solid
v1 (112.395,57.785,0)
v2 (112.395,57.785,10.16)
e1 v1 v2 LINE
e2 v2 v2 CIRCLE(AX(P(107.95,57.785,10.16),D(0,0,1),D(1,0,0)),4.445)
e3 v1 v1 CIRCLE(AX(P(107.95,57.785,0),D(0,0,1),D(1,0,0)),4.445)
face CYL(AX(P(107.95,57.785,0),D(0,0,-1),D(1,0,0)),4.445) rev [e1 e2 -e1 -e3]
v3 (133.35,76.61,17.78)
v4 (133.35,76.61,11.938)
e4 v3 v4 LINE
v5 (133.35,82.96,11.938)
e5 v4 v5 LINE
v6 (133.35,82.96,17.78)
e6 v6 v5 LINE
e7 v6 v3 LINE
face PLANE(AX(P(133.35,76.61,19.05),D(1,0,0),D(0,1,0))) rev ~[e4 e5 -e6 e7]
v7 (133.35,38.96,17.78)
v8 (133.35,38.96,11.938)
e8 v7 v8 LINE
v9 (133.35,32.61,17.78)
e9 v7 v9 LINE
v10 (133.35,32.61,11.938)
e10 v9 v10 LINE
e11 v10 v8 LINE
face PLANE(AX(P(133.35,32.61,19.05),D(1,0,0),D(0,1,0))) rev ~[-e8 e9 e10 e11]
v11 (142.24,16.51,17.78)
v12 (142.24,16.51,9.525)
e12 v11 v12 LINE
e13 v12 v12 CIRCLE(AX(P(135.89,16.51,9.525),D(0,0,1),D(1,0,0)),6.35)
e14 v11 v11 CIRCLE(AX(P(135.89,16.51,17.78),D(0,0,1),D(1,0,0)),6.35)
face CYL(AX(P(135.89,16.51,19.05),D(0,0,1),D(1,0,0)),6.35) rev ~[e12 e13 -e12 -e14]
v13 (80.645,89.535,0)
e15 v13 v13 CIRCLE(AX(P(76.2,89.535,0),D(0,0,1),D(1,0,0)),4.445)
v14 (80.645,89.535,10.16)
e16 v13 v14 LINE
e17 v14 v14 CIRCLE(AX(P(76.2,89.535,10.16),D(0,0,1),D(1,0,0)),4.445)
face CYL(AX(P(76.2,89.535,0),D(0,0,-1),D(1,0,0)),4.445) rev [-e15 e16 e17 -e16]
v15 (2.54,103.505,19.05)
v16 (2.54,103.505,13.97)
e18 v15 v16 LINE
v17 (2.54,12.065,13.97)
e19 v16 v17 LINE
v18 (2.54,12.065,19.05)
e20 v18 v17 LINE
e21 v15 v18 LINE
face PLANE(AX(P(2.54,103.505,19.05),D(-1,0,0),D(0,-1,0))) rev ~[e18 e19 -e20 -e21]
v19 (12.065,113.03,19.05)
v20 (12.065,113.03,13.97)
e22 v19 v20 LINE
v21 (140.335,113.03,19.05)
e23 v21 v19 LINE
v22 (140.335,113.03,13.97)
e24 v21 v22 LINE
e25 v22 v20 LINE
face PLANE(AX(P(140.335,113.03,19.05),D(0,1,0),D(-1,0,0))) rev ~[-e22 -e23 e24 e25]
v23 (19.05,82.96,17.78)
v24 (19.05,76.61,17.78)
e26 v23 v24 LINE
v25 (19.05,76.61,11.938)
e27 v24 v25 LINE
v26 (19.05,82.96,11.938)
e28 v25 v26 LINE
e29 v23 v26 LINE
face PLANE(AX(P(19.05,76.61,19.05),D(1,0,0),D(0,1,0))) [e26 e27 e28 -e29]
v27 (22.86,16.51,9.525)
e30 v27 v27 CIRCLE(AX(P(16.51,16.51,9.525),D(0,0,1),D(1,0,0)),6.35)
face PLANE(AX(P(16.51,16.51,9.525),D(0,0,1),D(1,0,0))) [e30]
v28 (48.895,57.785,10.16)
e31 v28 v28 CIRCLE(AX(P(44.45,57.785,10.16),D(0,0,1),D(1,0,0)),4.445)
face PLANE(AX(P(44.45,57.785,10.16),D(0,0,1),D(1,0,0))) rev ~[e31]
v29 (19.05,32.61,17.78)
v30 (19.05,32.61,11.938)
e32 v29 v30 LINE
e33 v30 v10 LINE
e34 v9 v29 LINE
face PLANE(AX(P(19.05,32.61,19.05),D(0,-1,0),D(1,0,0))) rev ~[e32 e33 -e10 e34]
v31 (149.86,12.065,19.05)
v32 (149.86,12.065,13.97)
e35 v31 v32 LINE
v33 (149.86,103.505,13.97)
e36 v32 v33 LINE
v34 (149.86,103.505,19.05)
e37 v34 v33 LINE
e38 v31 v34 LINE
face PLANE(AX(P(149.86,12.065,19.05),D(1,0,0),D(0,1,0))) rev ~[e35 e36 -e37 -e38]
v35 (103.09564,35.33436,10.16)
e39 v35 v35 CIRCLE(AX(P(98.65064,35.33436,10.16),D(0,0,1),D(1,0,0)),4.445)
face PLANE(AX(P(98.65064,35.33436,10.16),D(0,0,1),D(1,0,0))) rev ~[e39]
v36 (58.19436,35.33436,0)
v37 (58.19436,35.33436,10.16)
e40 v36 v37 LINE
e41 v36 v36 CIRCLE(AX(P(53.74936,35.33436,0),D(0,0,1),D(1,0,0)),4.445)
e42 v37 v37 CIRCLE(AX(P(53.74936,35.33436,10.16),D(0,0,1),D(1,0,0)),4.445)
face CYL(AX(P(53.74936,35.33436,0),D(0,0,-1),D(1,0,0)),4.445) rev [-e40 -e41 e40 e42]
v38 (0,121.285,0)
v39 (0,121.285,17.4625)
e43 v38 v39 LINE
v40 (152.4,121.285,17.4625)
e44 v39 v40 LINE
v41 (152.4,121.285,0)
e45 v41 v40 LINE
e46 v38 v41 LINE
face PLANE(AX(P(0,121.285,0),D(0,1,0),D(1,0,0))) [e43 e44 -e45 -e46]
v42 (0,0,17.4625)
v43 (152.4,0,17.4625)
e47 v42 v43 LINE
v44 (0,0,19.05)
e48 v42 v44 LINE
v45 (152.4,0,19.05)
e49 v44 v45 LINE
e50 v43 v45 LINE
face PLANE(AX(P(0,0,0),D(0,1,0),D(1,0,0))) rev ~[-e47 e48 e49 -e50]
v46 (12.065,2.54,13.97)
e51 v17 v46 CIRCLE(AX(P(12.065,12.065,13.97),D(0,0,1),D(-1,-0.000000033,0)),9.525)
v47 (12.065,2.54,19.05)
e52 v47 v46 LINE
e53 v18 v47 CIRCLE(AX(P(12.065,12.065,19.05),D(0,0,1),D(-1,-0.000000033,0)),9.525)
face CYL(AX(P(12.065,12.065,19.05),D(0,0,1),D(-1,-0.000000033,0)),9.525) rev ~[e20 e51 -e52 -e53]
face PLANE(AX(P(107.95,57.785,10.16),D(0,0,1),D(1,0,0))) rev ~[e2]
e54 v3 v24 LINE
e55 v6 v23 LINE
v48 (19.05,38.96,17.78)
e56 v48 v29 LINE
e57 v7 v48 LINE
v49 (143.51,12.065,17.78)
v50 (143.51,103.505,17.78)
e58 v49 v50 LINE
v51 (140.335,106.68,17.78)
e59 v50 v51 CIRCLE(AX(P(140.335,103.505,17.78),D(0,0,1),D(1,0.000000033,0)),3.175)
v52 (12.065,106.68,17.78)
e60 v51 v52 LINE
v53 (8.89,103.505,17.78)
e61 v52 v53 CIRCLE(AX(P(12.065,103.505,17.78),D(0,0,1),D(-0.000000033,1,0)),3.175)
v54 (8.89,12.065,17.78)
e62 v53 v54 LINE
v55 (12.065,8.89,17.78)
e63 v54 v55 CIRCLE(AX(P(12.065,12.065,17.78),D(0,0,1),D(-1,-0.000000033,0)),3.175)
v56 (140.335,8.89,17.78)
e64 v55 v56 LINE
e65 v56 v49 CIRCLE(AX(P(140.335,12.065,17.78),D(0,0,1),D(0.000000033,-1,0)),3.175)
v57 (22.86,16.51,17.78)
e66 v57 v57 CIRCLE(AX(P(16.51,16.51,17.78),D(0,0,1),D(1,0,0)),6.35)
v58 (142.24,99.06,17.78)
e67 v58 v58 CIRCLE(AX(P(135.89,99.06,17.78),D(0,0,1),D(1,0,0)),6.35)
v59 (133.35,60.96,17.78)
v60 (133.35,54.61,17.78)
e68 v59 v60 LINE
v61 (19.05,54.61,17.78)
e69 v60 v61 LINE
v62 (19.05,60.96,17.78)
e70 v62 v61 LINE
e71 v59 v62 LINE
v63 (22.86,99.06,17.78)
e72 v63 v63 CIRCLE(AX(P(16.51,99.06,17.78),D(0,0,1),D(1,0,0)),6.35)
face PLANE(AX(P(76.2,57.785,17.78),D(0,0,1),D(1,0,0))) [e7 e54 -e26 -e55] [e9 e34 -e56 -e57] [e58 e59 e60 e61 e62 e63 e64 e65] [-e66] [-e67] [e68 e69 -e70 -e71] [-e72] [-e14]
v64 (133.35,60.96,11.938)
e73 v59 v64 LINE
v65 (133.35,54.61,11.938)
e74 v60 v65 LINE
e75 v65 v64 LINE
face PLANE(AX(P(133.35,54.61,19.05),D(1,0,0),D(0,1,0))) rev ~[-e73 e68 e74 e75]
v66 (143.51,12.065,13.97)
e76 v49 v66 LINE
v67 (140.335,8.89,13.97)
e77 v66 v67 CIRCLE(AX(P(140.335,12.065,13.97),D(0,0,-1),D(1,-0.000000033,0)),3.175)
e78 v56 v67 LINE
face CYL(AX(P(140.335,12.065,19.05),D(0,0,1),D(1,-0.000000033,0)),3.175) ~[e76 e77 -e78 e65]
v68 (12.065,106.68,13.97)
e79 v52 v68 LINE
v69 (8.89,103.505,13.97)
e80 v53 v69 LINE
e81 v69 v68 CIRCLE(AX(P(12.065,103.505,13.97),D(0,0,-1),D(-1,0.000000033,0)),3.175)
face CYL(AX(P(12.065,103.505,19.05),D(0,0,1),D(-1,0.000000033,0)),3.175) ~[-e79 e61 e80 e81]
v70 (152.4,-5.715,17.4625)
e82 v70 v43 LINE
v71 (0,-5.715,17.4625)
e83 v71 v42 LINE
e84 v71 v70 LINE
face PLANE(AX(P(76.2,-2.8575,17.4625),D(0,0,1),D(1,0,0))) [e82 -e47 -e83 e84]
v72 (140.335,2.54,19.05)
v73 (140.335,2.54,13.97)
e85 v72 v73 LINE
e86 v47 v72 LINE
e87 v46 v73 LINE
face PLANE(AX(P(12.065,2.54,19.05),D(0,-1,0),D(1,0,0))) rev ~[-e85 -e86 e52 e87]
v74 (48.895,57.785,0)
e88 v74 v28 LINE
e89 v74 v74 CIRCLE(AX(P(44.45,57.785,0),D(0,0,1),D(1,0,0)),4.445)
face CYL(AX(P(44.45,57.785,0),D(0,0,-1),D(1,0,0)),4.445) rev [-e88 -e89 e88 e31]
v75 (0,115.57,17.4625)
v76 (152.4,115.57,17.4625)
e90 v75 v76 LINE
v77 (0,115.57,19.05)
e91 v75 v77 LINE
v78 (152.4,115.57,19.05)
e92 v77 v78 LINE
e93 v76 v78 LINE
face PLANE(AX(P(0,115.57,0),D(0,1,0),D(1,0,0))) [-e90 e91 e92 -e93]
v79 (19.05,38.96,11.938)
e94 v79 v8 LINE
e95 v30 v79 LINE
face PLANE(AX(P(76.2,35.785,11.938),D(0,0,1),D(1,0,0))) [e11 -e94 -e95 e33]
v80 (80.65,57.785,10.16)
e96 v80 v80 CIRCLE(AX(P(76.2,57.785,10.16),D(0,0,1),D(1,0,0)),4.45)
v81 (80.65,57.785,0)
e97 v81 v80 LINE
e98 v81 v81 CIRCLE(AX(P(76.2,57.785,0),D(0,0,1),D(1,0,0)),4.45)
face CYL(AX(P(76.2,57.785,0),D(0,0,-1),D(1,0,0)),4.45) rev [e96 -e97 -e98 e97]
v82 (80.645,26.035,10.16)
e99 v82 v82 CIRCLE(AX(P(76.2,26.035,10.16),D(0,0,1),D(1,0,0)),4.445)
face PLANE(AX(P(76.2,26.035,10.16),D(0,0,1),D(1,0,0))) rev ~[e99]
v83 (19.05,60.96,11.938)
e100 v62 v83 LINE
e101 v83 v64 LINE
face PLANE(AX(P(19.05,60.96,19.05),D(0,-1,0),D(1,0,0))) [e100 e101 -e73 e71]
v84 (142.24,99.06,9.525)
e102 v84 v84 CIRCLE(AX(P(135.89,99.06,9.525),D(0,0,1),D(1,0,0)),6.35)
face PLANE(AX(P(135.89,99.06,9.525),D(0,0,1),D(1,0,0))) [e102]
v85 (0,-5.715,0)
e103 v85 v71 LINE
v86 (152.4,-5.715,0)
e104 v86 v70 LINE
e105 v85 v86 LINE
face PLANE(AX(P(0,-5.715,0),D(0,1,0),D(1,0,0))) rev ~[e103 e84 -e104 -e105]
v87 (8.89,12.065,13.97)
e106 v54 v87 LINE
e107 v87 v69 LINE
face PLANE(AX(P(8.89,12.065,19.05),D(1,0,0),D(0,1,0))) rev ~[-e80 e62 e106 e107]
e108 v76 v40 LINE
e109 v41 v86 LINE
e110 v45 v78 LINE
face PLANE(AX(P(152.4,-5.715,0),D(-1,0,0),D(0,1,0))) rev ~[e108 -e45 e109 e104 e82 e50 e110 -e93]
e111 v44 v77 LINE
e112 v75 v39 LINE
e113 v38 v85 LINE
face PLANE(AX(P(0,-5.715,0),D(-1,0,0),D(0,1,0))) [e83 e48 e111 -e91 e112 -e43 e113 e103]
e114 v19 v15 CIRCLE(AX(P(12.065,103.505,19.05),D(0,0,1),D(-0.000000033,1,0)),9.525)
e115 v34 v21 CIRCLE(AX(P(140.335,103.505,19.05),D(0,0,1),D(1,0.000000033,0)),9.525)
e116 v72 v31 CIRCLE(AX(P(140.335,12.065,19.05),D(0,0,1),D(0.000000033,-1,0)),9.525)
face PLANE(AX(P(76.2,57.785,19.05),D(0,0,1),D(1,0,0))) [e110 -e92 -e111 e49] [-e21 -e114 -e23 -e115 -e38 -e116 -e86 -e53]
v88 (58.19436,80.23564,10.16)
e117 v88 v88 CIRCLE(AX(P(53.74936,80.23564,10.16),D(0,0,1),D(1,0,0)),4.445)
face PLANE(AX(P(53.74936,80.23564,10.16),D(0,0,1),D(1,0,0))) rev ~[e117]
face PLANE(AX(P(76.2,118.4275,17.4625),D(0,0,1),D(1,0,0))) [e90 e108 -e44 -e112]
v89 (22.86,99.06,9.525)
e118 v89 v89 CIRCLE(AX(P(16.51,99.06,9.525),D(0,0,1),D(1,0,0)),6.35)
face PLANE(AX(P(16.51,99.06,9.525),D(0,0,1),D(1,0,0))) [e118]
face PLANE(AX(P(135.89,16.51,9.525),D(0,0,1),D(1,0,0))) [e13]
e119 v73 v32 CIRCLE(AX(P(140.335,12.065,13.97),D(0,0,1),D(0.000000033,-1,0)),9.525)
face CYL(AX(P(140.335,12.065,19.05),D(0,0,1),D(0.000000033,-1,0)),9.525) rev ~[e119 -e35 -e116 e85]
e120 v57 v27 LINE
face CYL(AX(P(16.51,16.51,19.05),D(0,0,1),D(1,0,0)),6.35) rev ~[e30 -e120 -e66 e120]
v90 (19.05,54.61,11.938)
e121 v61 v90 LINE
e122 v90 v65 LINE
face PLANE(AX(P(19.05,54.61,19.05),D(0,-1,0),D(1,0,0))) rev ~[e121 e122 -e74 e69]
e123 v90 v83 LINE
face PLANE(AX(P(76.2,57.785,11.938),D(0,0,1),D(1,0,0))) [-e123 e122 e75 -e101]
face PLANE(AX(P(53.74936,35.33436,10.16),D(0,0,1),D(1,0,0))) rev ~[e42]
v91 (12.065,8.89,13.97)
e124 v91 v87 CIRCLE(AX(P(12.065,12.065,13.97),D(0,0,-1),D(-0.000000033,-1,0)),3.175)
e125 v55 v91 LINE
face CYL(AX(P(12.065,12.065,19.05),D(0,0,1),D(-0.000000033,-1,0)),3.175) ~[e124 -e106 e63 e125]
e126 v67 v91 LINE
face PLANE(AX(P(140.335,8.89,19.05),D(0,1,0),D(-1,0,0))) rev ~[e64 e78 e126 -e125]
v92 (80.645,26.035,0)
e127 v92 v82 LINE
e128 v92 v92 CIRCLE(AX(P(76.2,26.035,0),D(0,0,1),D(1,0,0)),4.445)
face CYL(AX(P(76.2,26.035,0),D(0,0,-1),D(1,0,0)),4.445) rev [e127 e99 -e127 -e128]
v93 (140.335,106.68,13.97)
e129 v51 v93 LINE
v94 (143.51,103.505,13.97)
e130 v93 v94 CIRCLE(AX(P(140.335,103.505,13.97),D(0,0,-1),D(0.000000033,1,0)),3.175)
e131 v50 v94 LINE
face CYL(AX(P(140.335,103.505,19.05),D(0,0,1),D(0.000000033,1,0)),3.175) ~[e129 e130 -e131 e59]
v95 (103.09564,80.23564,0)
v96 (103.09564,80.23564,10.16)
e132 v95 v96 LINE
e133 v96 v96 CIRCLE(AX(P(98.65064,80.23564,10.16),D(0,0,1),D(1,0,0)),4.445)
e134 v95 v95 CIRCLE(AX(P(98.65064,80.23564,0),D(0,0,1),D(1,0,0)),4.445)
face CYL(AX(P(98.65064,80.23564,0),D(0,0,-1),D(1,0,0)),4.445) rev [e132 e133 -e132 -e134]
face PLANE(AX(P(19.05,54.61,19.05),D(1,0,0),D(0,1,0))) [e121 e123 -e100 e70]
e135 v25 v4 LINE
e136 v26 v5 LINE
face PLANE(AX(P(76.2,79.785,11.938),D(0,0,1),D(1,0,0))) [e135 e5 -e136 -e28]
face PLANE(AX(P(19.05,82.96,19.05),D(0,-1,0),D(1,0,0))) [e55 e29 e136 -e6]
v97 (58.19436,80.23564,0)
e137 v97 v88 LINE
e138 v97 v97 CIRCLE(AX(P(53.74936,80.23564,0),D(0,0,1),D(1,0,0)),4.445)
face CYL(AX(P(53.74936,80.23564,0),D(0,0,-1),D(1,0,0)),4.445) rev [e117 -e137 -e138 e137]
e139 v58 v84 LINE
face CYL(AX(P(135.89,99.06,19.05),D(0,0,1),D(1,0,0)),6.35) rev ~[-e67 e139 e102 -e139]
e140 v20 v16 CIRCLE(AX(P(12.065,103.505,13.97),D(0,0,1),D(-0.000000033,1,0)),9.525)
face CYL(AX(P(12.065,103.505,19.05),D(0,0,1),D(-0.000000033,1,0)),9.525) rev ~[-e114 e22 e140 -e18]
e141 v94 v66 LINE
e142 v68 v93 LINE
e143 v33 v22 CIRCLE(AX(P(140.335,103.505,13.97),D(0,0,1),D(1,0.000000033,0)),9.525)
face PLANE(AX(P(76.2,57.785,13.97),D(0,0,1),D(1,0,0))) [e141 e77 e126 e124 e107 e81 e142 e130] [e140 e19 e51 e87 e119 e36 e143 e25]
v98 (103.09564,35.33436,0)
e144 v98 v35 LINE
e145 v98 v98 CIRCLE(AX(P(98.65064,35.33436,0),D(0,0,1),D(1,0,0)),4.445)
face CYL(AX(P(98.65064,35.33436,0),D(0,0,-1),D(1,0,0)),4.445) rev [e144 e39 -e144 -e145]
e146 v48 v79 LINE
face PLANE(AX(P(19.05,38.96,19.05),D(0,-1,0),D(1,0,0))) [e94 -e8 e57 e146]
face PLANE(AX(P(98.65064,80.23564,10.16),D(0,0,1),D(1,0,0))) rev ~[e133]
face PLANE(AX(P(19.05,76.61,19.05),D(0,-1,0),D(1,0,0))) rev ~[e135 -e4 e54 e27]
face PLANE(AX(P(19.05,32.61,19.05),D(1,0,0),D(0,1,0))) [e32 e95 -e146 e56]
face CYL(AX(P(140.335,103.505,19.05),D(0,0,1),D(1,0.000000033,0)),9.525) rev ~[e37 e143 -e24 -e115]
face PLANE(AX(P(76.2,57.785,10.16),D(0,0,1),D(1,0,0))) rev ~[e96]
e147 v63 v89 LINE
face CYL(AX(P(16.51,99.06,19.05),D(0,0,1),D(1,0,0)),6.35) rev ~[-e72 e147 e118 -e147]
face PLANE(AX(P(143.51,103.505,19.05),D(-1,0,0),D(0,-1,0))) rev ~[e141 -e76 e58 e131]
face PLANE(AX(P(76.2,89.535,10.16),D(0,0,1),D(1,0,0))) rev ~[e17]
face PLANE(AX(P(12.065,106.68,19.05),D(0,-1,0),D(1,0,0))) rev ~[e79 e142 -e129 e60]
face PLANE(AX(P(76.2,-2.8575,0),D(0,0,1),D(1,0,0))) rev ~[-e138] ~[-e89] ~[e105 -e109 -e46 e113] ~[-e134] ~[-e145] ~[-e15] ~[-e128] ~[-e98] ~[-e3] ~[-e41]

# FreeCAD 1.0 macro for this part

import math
import FreeCAD as App
import Part
import Sketcher
Q = App.Units.Quantity

doc = App.newDocument("Part")
body = doc.addObject("PartDesign::Body", "Body")

# Sketch on XY plane
sketch1 = body.newObject("Sketcher::SketchObject", "Sketch")
sketch1.AttachmentSupport = (doc.getObject("XY_Plane"), [""])
sketch1.MapMode = "FlatFace"
sketch1.addGeometry(Part.LineSegment(App.Vector(0, 116, 0), App.Vector(0, 0, 0)), False)
sketch1.addGeometry(Part.LineSegment(App.Vector(0, 0, 0), App.Vector(152, 0, 0)), False)
sketch1.addGeometry(Part.LineSegment(App.Vector(152, 0, 0), App.Vector(152, 116, 0)), False)
sketch1.addGeometry(Part.LineSegment(App.Vector(152, 116, 0), App.Vector(0, 116, 0)), False)
sketch1.addConstraint(Sketcher.Constraint("Coincident", 0, 2, 1, 1))
sketch1.addConstraint(Sketcher.Constraint("Coincident", 1, 2, 2, 1))
sketch1.addConstraint(Sketcher.Constraint("Coincident", 2, 2, 3, 1))
sketch1.addConstraint(Sketcher.Constraint("Coincident", 3, 2, 0, 1))
sketch1.addConstraint(Sketcher.Constraint("Vertical", 0))
sketch1.addConstraint(Sketcher.Constraint("Horizontal", 1))
sketch1.addConstraint(Sketcher.Constraint("Vertical", 2))
sketch1.addConstraint(Sketcher.Constraint("Horizontal", 3))
sketch1.addConstraint(Sketcher.Constraint("Coincident", 0, 2, -1, 1))
sketch1.addConstraint(Sketcher.Constraint("DistanceX", 1, 1, 1, 2, Q("6 in")))
sketch1.addConstraint(Sketcher.Constraint("DistanceY", 0, 2, 0, 1, Q("4.55 in")))
pad1 = body.newObject("PartDesign::Pad", "Pad")
pad1.Profile = sketch1
pad1.Length = Q("0.75 in")

# Sketch on XY plane
sketch2 = body.newObject("Sketcher::SketchObject", "Sketch001")
sketch2.AttachmentSupport = (doc.getObject("XY_Plane"), [""])
sketch2.MapMode = "FlatFace"
sketch2.AttachmentOffset = App.Placement(App.Vector(0, 0, 0.75 * 25.4), App.Rotation())
sketch2.addGeometry(Part.LineSegment(App.Vector(140.3, 113, 0), App.Vector(12.1, 113, 0)), False)
sketch2.addGeometry(Part.ArcOfCircle(Part.Circle(App.Vector(12.1, 103.5, 0), App.Vector(0, 0, 1), 9.5), math.radians(90), math.radians(180)), False)
sketch2.addGeometry(Part.LineSegment(App.Vector(2.5, 103.5, 0), App.Vector(2.5, 12.1, 0)), False)
sketch2.addGeometry(Part.ArcOfCircle(Part.Circle(App.Vector(12.1, 12.1, 0), App.Vector(0, 0, 1), 9.5), math.radians(-180), math.radians(-90)), False)
sketch2.addGeometry(Part.LineSegment(App.Vector(12.1, 2.5, 0), App.Vector(140.3, 2.5, 0)), False)
sketch2.addGeometry(Part.ArcOfCircle(Part.Circle(App.Vector(140.3, 12.1, 0), App.Vector(0, 0, 1), 9.5), math.radians(-90), math.radians(0)), False)
sketch2.addGeometry(Part.LineSegment(App.Vector(149.9, 12.1, 0), App.Vector(149.9, 103.5, 0)), False)
sketch2.addGeometry(Part.ArcOfCircle(Part.Circle(App.Vector(140.3, 103.5, 0), App.Vector(0, 0, 1), 9.5), math.radians(0), math.radians(90)), False)
sketch2.addGeometry(Part.LineSegment(App.Vector(8.9, 12.1, 0), App.Vector(8.9, 103.5, 0)), False)
sketch2.addGeometry(Part.ArcOfCircle(Part.Circle(App.Vector(12.1, 103.5, 0), App.Vector(0, 0, 1), 3.2), math.radians(90), math.radians(180)), False)
sketch2.addGeometry(Part.LineSegment(App.Vector(12.1, 106.7, 0), App.Vector(140.3, 106.7, 0)), False)
sketch2.addGeometry(Part.ArcOfCircle(Part.Circle(App.Vector(140.3, 103.5, 0), App.Vector(0, 0, 1), 3.2), math.radians(0), math.radians(90)), False)
sketch2.addGeometry(Part.LineSegment(App.Vector(143.5, 103.5, 0), App.Vector(143.5, 12.1, 0)), False)
sketch2.addGeometry(Part.ArcOfCircle(Part.Circle(App.Vector(140.3, 12.1, 0), App.Vector(0, 0, 1), 3.2), math.radians(-90), math.radians(0)), False)
sketch2.addGeometry(Part.LineSegment(App.Vector(140.3, 8.9, 0), App.Vector(12.1, 8.9, 0)), False)
sketch2.addGeometry(Part.ArcOfCircle(Part.Circle(App.Vector(12.1, 12.1, 0), App.Vector(0, 0, 1), 3.2), math.radians(-180), math.radians(-90)), False)
sketch2.addConstraint(Sketcher.Constraint("Tangent", 0, 2, 1, 1))
sketch2.addConstraint(Sketcher.Constraint("Tangent", 1, 2, 2, 1))
sketch2.addConstraint(Sketcher.Constraint("Tangent", 2, 2, 3, 1))
sketch2.addConstraint(Sketcher.Constraint("Tangent", 3, 2, 4, 1))
sketch2.addConstraint(Sketcher.Constraint("Tangent", 4, 2, 5, 1))
sketch2.addConstraint(Sketcher.Constraint("Tangent", 5, 2, 6, 1))
sketch2.addConstraint(Sketcher.Constraint("Tangent", 6, 2, 7, 1))
sketch2.addConstraint(Sketcher.Constraint("Tangent", 7, 2, 0, 1))
sketch2.addConstraint(Sketcher.Constraint("Tangent", 8, 2, 9, 2))
sketch2.addConstraint(Sketcher.Constraint("Tangent", 9, 1, 10, 1))
sketch2.addConstraint(Sketcher.Constraint("Tangent", 10, 2, 11, 2))
sketch2.addConstraint(Sketcher.Constraint("Tangent", 11, 1, 12, 1))
sketch2.addConstraint(Sketcher.Constraint("Tangent", 12, 2, 13, 2))
sketch2.addConstraint(Sketcher.Constraint("Tangent", 13, 1, 14, 1))
sketch2.addConstraint(Sketcher.Constraint("Tangent", 14, 2, 15, 2))
sketch2.addConstraint(Sketcher.Constraint("Tangent", 15, 1, 8, 1))
sketch2.addConstraint(Sketcher.Constraint("Horizontal", 0))
sketch2.addConstraint(Sketcher.Constraint("Vertical", 2))
sketch2.addConstraint(Sketcher.Constraint("Horizontal", 4))
sketch2.addConstraint(Sketcher.Constraint("Vertical", 6))
sketch2.addConstraint(Sketcher.Constraint("Vertical", 8))
sketch2.addConstraint(Sketcher.Constraint("Horizontal", 10))
sketch2.addConstraint(Sketcher.Constraint("Vertical", 12))
sketch2.addConstraint(Sketcher.Constraint("Horizontal", 14))
sketch2.addConstraint(Sketcher.Constraint("Coincident", 9, 3, 1, 3))
sketch2.addConstraint(Sketcher.Constraint("Coincident", 11, 3, 7, 3))
sketch2.addConstraint(Sketcher.Constraint("Coincident", 13, 3, 5, 3))
sketch2.addConstraint(Sketcher.Constraint("Equal", 1, 3))
sketch2.addConstraint(Sketcher.Constraint("Equal", 3, 5))
sketch2.addConstraint(Sketcher.Constraint("Equal", 5, 7))
sketch2.addConstraint(Sketcher.Constraint("Equal", 13, 15))
sketch2.addConstraint(Sketcher.Constraint("DistanceY", 2, 2, 2, 1, Q("3.6 in")))
sketch2.addConstraint(Sketcher.Constraint("Radius", 1, Q("0.375 in")))
sketch2.addConstraint(Sketcher.Constraint("Radius", 9, Q("0.125 in")))
sketch2.addConstraint(Sketcher.Constraint("DistanceX", 0, 2, 0, 1, Q("5.05 in")))
sketch2.addConstraint(Sketcher.Constraint("DistanceX", -1, 1, 1, 2, Q("0.1 in")))
sketch2.addConstraint(Sketcher.Constraint("DistanceY", -1, 1, 3, 2, Q("0.1 in")))
pocket1 = body.newObject("PartDesign::Pocket", "Pocket")
pocket1.Profile = sketch2
pocket1.Length = Q("0.2 in")

# Sketch on XY plane
sketch3 = body.newObject("Sketcher::SketchObject", "Sketch002")
sketch3.AttachmentSupport = (doc.getObject("XY_Plane"), [""])
sketch3.MapMode = "FlatFace"
sketch3.AttachmentOffset = App.Placement(App.Vector(0, 0, 0.75 * 25.4), App.Rotation())
sketch3.addGeometry(Part.LineSegment(App.Vector(19, 61, 0), App.Vector(19, 55, 0)), False)
sketch3.addGeometry(Part.LineSegment(App.Vector(19, 55, 0), App.Vector(133, 55, 0)), False)
sketch3.addGeometry(Part.LineSegment(App.Vector(133, 55, 0), App.Vector(133, 61, 0)), False)
sketch3.addGeometry(Part.LineSegment(App.Vector(133, 61, 0), App.Vector(19, 61, 0)), False)
sketch3.addGeometry(Part.LineSegment(App.Vector(19, 83, 0), App.Vector(19, 77, 0)), False)
sketch3.addGeometry(Part.LineSegment(App.Vector(19, 77, 0), App.Vector(133, 77, 0)), False)
sketch3.addGeometry(Part.LineSegment(App.Vector(133, 77, 0), App.Vector(133, 83, 0)), False)
sketch3.addGeometry(Part.LineSegment(App.Vector(133, 83, 0), App.Vector(19, 83, 0)), False)
sketch3.addGeometry(Part.LineSegment(App.Vector(19, 39, 0), App.Vector(19, 33, 0)), False)
sketch3.addGeometry(Part.LineSegment(App.Vector(19, 33, 0), App.Vector(133, 33, 0)), False)
sketch3.addGeometry(Part.LineSegment(App.Vector(133, 33, 0), App.Vector(133, 39, 0)), False)
sketch3.addGeometry(Part.LineSegment(App.Vector(133, 39, 0), App.Vector(19, 39, 0)), False)
sketch3.addConstraint(Sketcher.Constraint("Coincident", 0, 2, 1, 1))
sketch3.addConstraint(Sketcher.Constraint("Coincident", 1, 2, 2, 1))
sketch3.addConstraint(Sketcher.Constraint("Coincident", 2, 2, 3, 1))
sketch3.addConstraint(Sketcher.Constraint("Coincident", 3, 2, 0, 1))
sketch3.addConstraint(Sketcher.Constraint("Coincident", 4, 2, 5, 1))
sketch3.addConstraint(Sketcher.Constraint("Coincident", 5, 2, 6, 1))
sketch3.addConstraint(Sketcher.Constraint("Coincident", 6, 2, 7, 1))
sketch3.addConstraint(Sketcher.Constraint("Coincident", 7, 2, 4, 1))
sketch3.addConstraint(Sketcher.Constraint("Coincident", 8, 2, 9, 1))
sketch3.addConstraint(Sketcher.Constraint("Coincident", 9, 2, 10, 1))
sketch3.addConstraint(Sketcher.Constraint("Coincident", 10, 2, 11, 1))
sketch3.addConstraint(Sketcher.Constraint("Coincident", 11, 2, 8, 1))
sketch3.addConstraint(Sketcher.Constraint("Vertical", 0))
sketch3.addConstraint(Sketcher.Constraint("Horizontal", 1))
sketch3.addConstraint(Sketcher.Constraint("Vertical", 2))
sketch3.addConstraint(Sketcher.Constraint("Horizontal", 3))
sketch3.addConstraint(Sketcher.Constraint("Vertical", 4))
sketch3.addConstraint(Sketcher.Constraint("Horizontal", 5))
sketch3.addConstraint(Sketcher.Constraint("Vertical", 6))
sketch3.addConstraint(Sketcher.Constraint("Horizontal", 7))
sketch3.addConstraint(Sketcher.Constraint("Vertical", 8))
sketch3.addConstraint(Sketcher.Constraint("Horizontal", 9))
sketch3.addConstraint(Sketcher.Constraint("Vertical", 10))
sketch3.addConstraint(Sketcher.Constraint("Horizontal", 11))
sketch3.addConstraint(Sketcher.Constraint("Vertical", 3, 2, 4, 2))
sketch3.addConstraint(Sketcher.Constraint("Vertical", 2, 2, 5, 2))
sketch3.addConstraint(Sketcher.Constraint("Vertical", 7, 2, 8, 2))
sketch3.addConstraint(Sketcher.Constraint("Vertical", 6, 2, 9, 2))
sketch3.addConstraint(Sketcher.Constraint("Equal", 2, 4))
sketch3.addConstraint(Sketcher.Constraint("Equal", 6, 8))
sketch3.addConstraint(Sketcher.Constraint("DistanceX", 1, 1, 1, 2, Q("4.5 in")))
sketch3.addConstraint(Sketcher.Constraint("DistanceY", 0, 2, 0, 1, Q("0.25 in")))
sketch3.addConstraint(Sketcher.Constraint("DistanceY", -1, 1, 2, 2, Q("2.4 in")))
sketch3.addConstraint(Sketcher.Constraint("DistanceX", -1, 1, 0, 2, Q("0.75 in")))
sketch3.addConstraint(Sketcher.Constraint("DistanceY", -1, 1, 4, 2, Q("76.61 mm")))
sketch3.addConstraint(Sketcher.Constraint("DistanceY", -1, 1, 8, 2, Q("32.61 mm")))
pocket2 = body.newObject("PartDesign::Pocket", "Pocket001")
pocket2.Profile = sketch3
pocket2.Length = Q("0.28 in")

# Sketch on XY plane
sketch4 = body.newObject("Sketcher::SketchObject", "Sketch003")
sketch4.AttachmentSupport = (doc.getObject("XY_Plane"), [""])
sketch4.MapMode = "FlatFace"
sketch4.AttachmentOffset = App.Placement(App.Vector(0, 0, 0.75 * 25.4), App.Rotation())
sketch4.addGeometry(Part.LineSegment(App.Vector(140.3, 106.7, 0), App.Vector(12.1, 106.7, 0)), False)
sketch4.addGeometry(Part.ArcOfCircle(Part.Circle(App.Vector(12.1, 103.5, 0), App.Vector(0, 0, 1), 3.2), math.radians(90), math.radians(180)), False)
sketch4.addGeometry(Part.LineSegment(App.Vector(8.9, 103.5, 0), App.Vector(8.9, 12.1, 0)), False)
sketch4.addGeometry(Part.ArcOfCircle(Part.Circle(App.Vector(12.1, 12.1, 0), App.Vector(0, 0, 1), 3.2), math.radians(-180), math.radians(-90)), False)
sketch4.addGeometry(Part.LineSegment(App.Vector(12.1, 8.9, 0), App.Vector(140.3, 8.9, 0)), False)
sketch4.addGeometry(Part.ArcOfCircle(Part.Circle(App.Vector(140.3, 12.1, 0), App.Vector(0, 0, 1), 3.2), math.radians(-90), math.radians(0)), False)
sketch4.addGeometry(Part.LineSegment(App.Vector(143.5, 12.1, 0), App.Vector(143.5, 103.5, 0)), False)
sketch4.addGeometry(Part.ArcOfCircle(Part.Circle(App.Vector(140.3, 103.5, 0), App.Vector(0, 0, 1), 3.2), math.radians(0), math.radians(90)), False)
sketch4.addConstraint(Sketcher.Constraint("Tangent", 0, 2, 1, 1))
sketch4.addConstraint(Sketcher.Constraint("Tangent", 1, 2, 2, 1))
sketch4.addConstraint(Sketcher.Constraint("Tangent", 2, 2, 3, 1))
sketch4.addConstraint(Sketcher.Constraint("Tangent", 3, 2, 4, 1))
sketch4.addConstraint(Sketcher.Constraint("Tangent", 4, 2, 5, 1))
sketch4.addConstraint(Sketcher.Constraint("Tangent", 5, 2, 6, 1))
sketch4.addConstraint(Sketcher.Constraint("Tangent", 6, 2, 7, 1))
sketch4.addConstraint(Sketcher.Constraint("Tangent", 7, 2, 0, 1))
sketch4.addConstraint(Sketcher.Constraint("Horizontal", 0))
sketch4.addConstraint(Sketcher.Constraint("Vertical", 2))
sketch4.addConstraint(Sketcher.Constraint("Horizontal", 4))
sketch4.addConstraint(Sketcher.Constraint("Vertical", 6))
sketch4.addConstraint(Sketcher.Constraint("Equal", 1, 3))
sketch4.addConstraint(Sketcher.Constraint("Equal", 3, 5))
sketch4.addConstraint(Sketcher.Constraint("Equal", 5, 7))
sketch4.addConstraint(Sketcher.Constraint("DistanceY", 2, 2, 2, 1, Q("3.6 in")))
sketch4.addConstraint(Sketcher.Constraint("Radius", 1, Q("0.125 in")))
sketch4.addConstraint(Sketcher.Constraint("DistanceX", 0, 2, 0, 1, Q("5.05 in")))
sketch4.addConstraint(Sketcher.Constraint("DistanceY", -1, 1, 0, 2, Q("4.2 in")))
sketch4.addConstraint(Sketcher.Constraint("DistanceX", -1, 1, 1, 2, Q("0.35 in")))
pocket3 = body.newObject("PartDesign::Pocket", "Pocket002")
pocket3.Profile = sketch4
pocket3.Length = Q("0.03125 in")

# Sketch on XY plane
sketch5 = body.newObject("Sketcher::SketchObject", "Sketch004")
sketch5.AttachmentSupport = (doc.getObject("XY_Plane"), [""])
sketch5.MapMode = "FlatFace"
sketch5.addGeometry(Part.LineSegment(App.Vector(0, 0, 0), App.Vector(0, -6, 0)), False)
sketch5.addGeometry(Part.LineSegment(App.Vector(0, -6, 0), App.Vector(152, -6, 0)), False)
sketch5.addGeometry(Part.LineSegment(App.Vector(152, -6, 0), App.Vector(152, 0, 0)), False)
sketch5.addGeometry(Part.LineSegment(App.Vector(152, 0, 0), App.Vector(0, 0, 0)), False)
sketch5.addGeometry(Part.LineSegment(App.Vector(0, 121, 0), App.Vector(0, 116, 0)), False)
sketch5.addGeometry(Part.LineSegment(App.Vector(0, 116, 0), App.Vector(152, 116, 0)), False)
sketch5.addGeometry(Part.LineSegment(App.Vector(152, 116, 0), App.Vector(152, 121, 0)), False)
sketch5.addGeometry(Part.LineSegment(App.Vector(152, 121, 0), App.Vector(0, 121, 0)), False)
sketch5.addConstraint(Sketcher.Constraint("Coincident", 0, 2, 1, 1))
sketch5.addConstraint(Sketcher.Constraint("Coincident", 1, 2, 2, 1))
sketch5.addConstraint(Sketcher.Constraint("Coincident", 2, 2, 3, 1))
sketch5.addConstraint(Sketcher.Constraint("Coincident", 3, 2, 0, 1))
sketch5.addConstraint(Sketcher.Constraint("Coincident", 4, 2, 5, 1))
sketch5.addConstraint(Sketcher.Constraint("Coincident", 5, 2, 6, 1))
sketch5.addConstraint(Sketcher.Constraint("Coincident", 6, 2, 7, 1))
sketch5.addConstraint(Sketcher.Constraint("Coincident", 7, 2, 4, 1))
sketch5.addConstraint(Sketcher.Constraint("Vertical", 0))
sketch5.addConstraint(Sketcher.Constraint("Horizontal", 1))
sketch5.addConstraint(Sketcher.Constraint("Vertical", 2))
sketch5.addConstraint(Sketcher.Constraint("Horizontal", 3))
sketch5.addConstraint(Sketcher.Constraint("Vertical", 4))
sketch5.addConstraint(Sketcher.Constraint("Horizontal", 5))
sketch5.addConstraint(Sketcher.Constraint("Vertical", 6))
sketch5.addConstraint(Sketcher.Constraint("Horizontal", 7))
sketch5.addConstraint(Sketcher.Constraint("Coincident", 3, 2, -1, 1))
sketch5.addConstraint(Sketcher.Constraint("PointOnObject", 4, 2, -2))
sketch5.addConstraint(Sketcher.Constraint("Vertical", 2, 2, 5, 2))
sketch5.addConstraint(Sketcher.Constraint("Equal", 2, 4))
sketch5.addConstraint(Sketcher.Constraint("DistanceX", 1, 1, 1, 2, Q("6 in")))
sketch5.addConstraint(Sketcher.Constraint("DistanceY", 1, 2, 6, 2, Q("5 in")))
sketch5.addConstraint(Sketcher.Constraint("DistanceY", 0, 2, 0, 1, Q("0.225 in")))
pad2 = body.newObject("PartDesign::Pad", "Pad001")
pad2.Profile = sketch5
pad2.Length = Q("0.6875 in")

# Sketch on XY plane
sketch6 = body.newObject("Sketcher::SketchObject", "Sketch005")
sketch6.AttachmentSupport = (doc.getObject("XY_Plane"), [""])
sketch6.MapMode = "FlatFace"
sketch6.AttachmentOffset = App.Placement(App.Vector(0, 0, 0.75 * 25.4), App.Rotation())
sketch6.addGeometry(Part.LineSegment(App.Vector(140.3, 106.7, 0), App.Vector(12.1, 106.7, 0)), False)
sketch6.addGeometry(Part.ArcOfCircle(Part.Circle(App.Vector(12.1, 103.5, 0), App.Vector(0, 0, 1), 3.2), math.radians(90), math.radians(180)), False)
sketch6.addGeometry(Part.LineSegment(App.Vector(8.9, 103.5, 0), App.Vector(8.9, 12.1, 0)), False)
sketch6.addGeometry(Part.ArcOfCircle(Part.Circle(App.Vector(12.1, 12.1, 0), App.Vector(0, 0, 1), 3.2), math.radians(-180), math.radians(-90)), False)
sketch6.addGeometry(Part.LineSegment(App.Vector(12.1, 8.9, 0), App.Vector(140.3, 8.9, 0)), False)
sketch6.addGeometry(Part.ArcOfCircle(Part.Circle(App.Vector(140.3, 12.1, 0), App.Vector(0, 0, 1), 3.2), math.radians(-90), math.radians(0)), False)
sketch6.addGeometry(Part.LineSegment(App.Vector(143.5, 12.1, 0), App.Vector(143.5, 103.5, 0)), False)
sketch6.addGeometry(Part.ArcOfCircle(Part.Circle(App.Vector(140.3, 103.5, 0), App.Vector(0, 0, 1), 3.2), math.radians(0), math.radians(90)), False)
sketch6.addConstraint(Sketcher.Constraint("Tangent", 0, 2, 1, 1))
sketch6.addConstraint(Sketcher.Constraint("Tangent", 1, 2, 2, 1))
sketch6.addConstraint(Sketcher.Constraint("Tangent", 2, 2, 3, 1))
sketch6.addConstraint(Sketcher.Constraint("Tangent", 3, 2, 4, 1))
sketch6.addConstraint(Sketcher.Constraint("Tangent", 4, 2, 5, 1))
sketch6.addConstraint(Sketcher.Constraint("Tangent", 5, 2, 6, 1))
sketch6.addConstraint(Sketcher.Constraint("Tangent", 6, 2, 7, 1))
sketch6.addConstraint(Sketcher.Constraint("Tangent", 7, 2, 0, 1))
sketch6.addConstraint(Sketcher.Constraint("Horizontal", 0))
sketch6.addConstraint(Sketcher.Constraint("Vertical", 2))
sketch6.addConstraint(Sketcher.Constraint("Horizontal", 4))
sketch6.addConstraint(Sketcher.Constraint("Vertical", 6))
sketch6.addConstraint(Sketcher.Constraint("Equal", 1, 3))
sketch6.addConstraint(Sketcher.Constraint("Equal", 3, 5))
sketch6.addConstraint(Sketcher.Constraint("Equal", 5, 7))
sketch6.addConstraint(Sketcher.Constraint("DistanceY", 2, 2, 2, 1, Q("3.6 in")))
sketch6.addConstraint(Sketcher.Constraint("Radius", 1, Q("0.125 in")))
sketch6.addConstraint(Sketcher.Constraint("DistanceX", 0, 2, 0, 1, Q("5.05 in")))
sketch6.addConstraint(Sketcher.Constraint("DistanceY", -1, 1, 0, 2, Q("4.2 in")))
sketch6.addConstraint(Sketcher.Constraint("DistanceX", -1, 1, 1, 2, Q("0.35 in")))
pocket4 = body.newObject("PartDesign::Pocket", "Pocket003")
pocket4.Profile = sketch6
pocket4.Length = Q("0.05 in")

# Sketch on XY plane
sketch7 = body.newObject("Sketcher::SketchObject", "Sketch006")
sketch7.AttachmentSupport = (doc.getObject("XY_Plane"), [""])
sketch7.MapMode = "FlatFace"
sketch7.AttachmentOffset = App.Placement(App.Vector(0, 0, 0.75 * 25.4), App.Rotation())
sketch7.addGeometry(Part.Circle(App.Vector(17, 99, 0), App.Vector(0, 0, 1), 6), False)
sketch7.addGeometry(Part.Circle(App.Vector(136, 99, 0), App.Vector(0, 0, 1), 6), False)
sketch7.addGeometry(Part.Circle(App.Vector(17, 17, 0), App.Vector(0, 0, 1), 6), False)
sketch7.addGeometry(Part.Circle(App.Vector(136, 17, 0), App.Vector(0, 0, 1), 6), False)
sketch7.addConstraint(Sketcher.Constraint("Equal", 0, 1))
sketch7.addConstraint(Sketcher.Constraint("Equal", 1, 2))
sketch7.addConstraint(Sketcher.Constraint("Equal", 2, 3))
sketch7.addConstraint(Sketcher.Constraint("Horizontal", 0, 3, 1, 3))
sketch7.addConstraint(Sketcher.Constraint("Horizontal", 2, 3, 3, 3))
sketch7.addConstraint(Sketcher.Constraint("Vertical", 0, 3, 2, 3))
sketch7.addConstraint(Sketcher.Constraint("Vertical", 1, 3, 3, 3))
sketch7.addConstraint(Sketcher.Constraint("Diameter", 0, Q("0.5 in")))
sketch7.addConstraint(Sketcher.Constraint("DistanceY", -1, 1, 0, 3, Q("3.9 in")))
sketch7.addConstraint(Sketcher.Constraint("DistanceX", 0, 3, 1, 3, Q("4.7 in")))
sketch7.addConstraint(Sketcher.Constraint("DistanceX", -1, 1, 0, 3, Q("0.65 in")))
sketch7.addConstraint(Sketcher.Constraint("DistanceY", -1, 1, 2, 3, Q("0.65 in")))
pocket5 = body.newObject("PartDesign::Pocket", "Pocket004")
pocket5.Profile = sketch7
pocket5.Length = Q("0.375 in")

# Sketch on XY plane
sketch8 = body.newObject("Sketcher::SketchObject", "Sketch007")
sketch8.AttachmentSupport = (doc.getObject("XY_Plane"), [""])
sketch8.MapMode = "FlatFace"
sketch8.addGeometry(Part.Circle(App.Vector(76.2, 57.8, 0), App.Vector(0, 0, 1), 4.5), False)
sketch8.addGeometry(Part.Circle(App.Vector(44.5, 57.8, 0), App.Vector(0, 0, 1), 4.4), False)
sketch8.addGeometry(Part.Circle(App.Vector(53.7, 35.3, 0), App.Vector(0, 0, 1), 4.4), False)
sketch8.addGeometry(Part.Circle(App.Vector(76.2, 26, 0), App.Vector(0, 0, 1), 4.4), False)
sketch8.addGeometry(Part.Circle(App.Vector(98.7, 35.3, 0), App.Vector(0, 0, 1), 4.4), False)
sketch8.addGeometry(Part.Circle(App.Vector(108, 57.8, 0), App.Vector(0, 0, 1), 4.4), False)
sketch8.addGeometry(Part.Circle(App.Vector(98.7, 80.2, 0), App.Vector(0, 0, 1), 4.4), False)
sketch8.addGeometry(Part.Circle(App.Vector(76.2, 89.5, 0), App.Vector(0, 0, 1), 4.4), False)
sketch8.addGeometry(Part.Circle(App.Vector(53.7, 80.2, 0), App.Vector(0, 0, 1), 4.4), False)
sketch8.addConstraint(Sketcher.Constraint("Equal", 1, 2))
sketch8.addConstraint(Sketcher.Constraint("Equal", 2, 3))
sketch8.addConstraint(Sketcher.Constraint("Equal", 3, 4))
sketch8.addConstraint(Sketcher.Constraint("Equal", 4, 5))
sketch8.addConstraint(Sketcher.Constraint("Equal", 5, 6))
sketch8.addConstraint(Sketcher.Constraint("Equal", 6, 7))
sketch8.addConstraint(Sketcher.Constraint("Equal", 7, 8))
sketch8.addConstraint(Sketcher.Constraint("Horizontal", 0, 3, 1, 3))
sketch8.addConstraint(Sketcher.Constraint("Horizontal", 2, 3, 4, 3))
sketch8.addConstraint(Sketcher.Constraint("Horizontal", 1, 3, 5, 3))
sketch8.addConstraint(Sketcher.Constraint("Horizontal", 6, 3, 8, 3))
sketch8.addConstraint(Sketcher.Constraint("Vertical", 0, 3, 3, 3))
sketch8.addConstraint(Sketcher.Constraint("Vertical", 4, 3, 6, 3))
sketch8.addConstraint(Sketcher.Constraint("Vertical", 3, 3, 7, 3))
sketch8.addConstraint(Sketcher.Constraint("Vertical", 2, 3, 8, 3))
sketch8.addConstraint(Sketcher.Constraint("Diameter", 1, Q("0.35 in")))
sketch8.addConstraint(Sketcher.Constraint("DistanceX", -1, 1, 0, 3, Q("3 in")))
sketch8.addConstraint(Sketcher.Constraint("DistanceX", 1, 3, 5, 3, Q("2.5 in")))
sketch8.addConstraint(Sketcher.Constraint("Diameter", 0, Q("8.9 mm")))
sketch8.addConstraint(Sketcher.Constraint("DistanceX", -1, 1, 1, 3, Q("1.75 in")))
sketch8.addConstraint(Sketcher.Constraint("DistanceY", 3, 3, 0, 3, Q("1.25 in")))
sketch8.addConstraint(Sketcher.Constraint("DistanceY", 0, 3, 7, 3, Q("1.25 in")))
sketch8.addConstraint(Sketcher.Constraint("DistanceY", -1, 1, 0, 3, Q("2.275 in")))
sketch8.addConstraint(Sketcher.Constraint("DistanceX", -1, 1, 2, 3, Q("53.74936 mm")))
sketch8.addConstraint(Sketcher.Constraint("DistanceY", -1, 1, 2, 3, Q("35.33436 mm")))
sketch8.addConstraint(Sketcher.Constraint("DistanceX", -1, 1, 4, 3, Q("98.65064 mm")))
sketch8.addConstraint(Sketcher.Constraint("DistanceY", -1, 1, 6, 3, Q("80.23564 mm")))
pocket6 = body.newObject("PartDesign::Pocket", "Pocket005")
pocket6.Profile = sketch8
pocket6.Length = Q("0.4 in")
pocket6.Reversed = True

doc.recompute()
